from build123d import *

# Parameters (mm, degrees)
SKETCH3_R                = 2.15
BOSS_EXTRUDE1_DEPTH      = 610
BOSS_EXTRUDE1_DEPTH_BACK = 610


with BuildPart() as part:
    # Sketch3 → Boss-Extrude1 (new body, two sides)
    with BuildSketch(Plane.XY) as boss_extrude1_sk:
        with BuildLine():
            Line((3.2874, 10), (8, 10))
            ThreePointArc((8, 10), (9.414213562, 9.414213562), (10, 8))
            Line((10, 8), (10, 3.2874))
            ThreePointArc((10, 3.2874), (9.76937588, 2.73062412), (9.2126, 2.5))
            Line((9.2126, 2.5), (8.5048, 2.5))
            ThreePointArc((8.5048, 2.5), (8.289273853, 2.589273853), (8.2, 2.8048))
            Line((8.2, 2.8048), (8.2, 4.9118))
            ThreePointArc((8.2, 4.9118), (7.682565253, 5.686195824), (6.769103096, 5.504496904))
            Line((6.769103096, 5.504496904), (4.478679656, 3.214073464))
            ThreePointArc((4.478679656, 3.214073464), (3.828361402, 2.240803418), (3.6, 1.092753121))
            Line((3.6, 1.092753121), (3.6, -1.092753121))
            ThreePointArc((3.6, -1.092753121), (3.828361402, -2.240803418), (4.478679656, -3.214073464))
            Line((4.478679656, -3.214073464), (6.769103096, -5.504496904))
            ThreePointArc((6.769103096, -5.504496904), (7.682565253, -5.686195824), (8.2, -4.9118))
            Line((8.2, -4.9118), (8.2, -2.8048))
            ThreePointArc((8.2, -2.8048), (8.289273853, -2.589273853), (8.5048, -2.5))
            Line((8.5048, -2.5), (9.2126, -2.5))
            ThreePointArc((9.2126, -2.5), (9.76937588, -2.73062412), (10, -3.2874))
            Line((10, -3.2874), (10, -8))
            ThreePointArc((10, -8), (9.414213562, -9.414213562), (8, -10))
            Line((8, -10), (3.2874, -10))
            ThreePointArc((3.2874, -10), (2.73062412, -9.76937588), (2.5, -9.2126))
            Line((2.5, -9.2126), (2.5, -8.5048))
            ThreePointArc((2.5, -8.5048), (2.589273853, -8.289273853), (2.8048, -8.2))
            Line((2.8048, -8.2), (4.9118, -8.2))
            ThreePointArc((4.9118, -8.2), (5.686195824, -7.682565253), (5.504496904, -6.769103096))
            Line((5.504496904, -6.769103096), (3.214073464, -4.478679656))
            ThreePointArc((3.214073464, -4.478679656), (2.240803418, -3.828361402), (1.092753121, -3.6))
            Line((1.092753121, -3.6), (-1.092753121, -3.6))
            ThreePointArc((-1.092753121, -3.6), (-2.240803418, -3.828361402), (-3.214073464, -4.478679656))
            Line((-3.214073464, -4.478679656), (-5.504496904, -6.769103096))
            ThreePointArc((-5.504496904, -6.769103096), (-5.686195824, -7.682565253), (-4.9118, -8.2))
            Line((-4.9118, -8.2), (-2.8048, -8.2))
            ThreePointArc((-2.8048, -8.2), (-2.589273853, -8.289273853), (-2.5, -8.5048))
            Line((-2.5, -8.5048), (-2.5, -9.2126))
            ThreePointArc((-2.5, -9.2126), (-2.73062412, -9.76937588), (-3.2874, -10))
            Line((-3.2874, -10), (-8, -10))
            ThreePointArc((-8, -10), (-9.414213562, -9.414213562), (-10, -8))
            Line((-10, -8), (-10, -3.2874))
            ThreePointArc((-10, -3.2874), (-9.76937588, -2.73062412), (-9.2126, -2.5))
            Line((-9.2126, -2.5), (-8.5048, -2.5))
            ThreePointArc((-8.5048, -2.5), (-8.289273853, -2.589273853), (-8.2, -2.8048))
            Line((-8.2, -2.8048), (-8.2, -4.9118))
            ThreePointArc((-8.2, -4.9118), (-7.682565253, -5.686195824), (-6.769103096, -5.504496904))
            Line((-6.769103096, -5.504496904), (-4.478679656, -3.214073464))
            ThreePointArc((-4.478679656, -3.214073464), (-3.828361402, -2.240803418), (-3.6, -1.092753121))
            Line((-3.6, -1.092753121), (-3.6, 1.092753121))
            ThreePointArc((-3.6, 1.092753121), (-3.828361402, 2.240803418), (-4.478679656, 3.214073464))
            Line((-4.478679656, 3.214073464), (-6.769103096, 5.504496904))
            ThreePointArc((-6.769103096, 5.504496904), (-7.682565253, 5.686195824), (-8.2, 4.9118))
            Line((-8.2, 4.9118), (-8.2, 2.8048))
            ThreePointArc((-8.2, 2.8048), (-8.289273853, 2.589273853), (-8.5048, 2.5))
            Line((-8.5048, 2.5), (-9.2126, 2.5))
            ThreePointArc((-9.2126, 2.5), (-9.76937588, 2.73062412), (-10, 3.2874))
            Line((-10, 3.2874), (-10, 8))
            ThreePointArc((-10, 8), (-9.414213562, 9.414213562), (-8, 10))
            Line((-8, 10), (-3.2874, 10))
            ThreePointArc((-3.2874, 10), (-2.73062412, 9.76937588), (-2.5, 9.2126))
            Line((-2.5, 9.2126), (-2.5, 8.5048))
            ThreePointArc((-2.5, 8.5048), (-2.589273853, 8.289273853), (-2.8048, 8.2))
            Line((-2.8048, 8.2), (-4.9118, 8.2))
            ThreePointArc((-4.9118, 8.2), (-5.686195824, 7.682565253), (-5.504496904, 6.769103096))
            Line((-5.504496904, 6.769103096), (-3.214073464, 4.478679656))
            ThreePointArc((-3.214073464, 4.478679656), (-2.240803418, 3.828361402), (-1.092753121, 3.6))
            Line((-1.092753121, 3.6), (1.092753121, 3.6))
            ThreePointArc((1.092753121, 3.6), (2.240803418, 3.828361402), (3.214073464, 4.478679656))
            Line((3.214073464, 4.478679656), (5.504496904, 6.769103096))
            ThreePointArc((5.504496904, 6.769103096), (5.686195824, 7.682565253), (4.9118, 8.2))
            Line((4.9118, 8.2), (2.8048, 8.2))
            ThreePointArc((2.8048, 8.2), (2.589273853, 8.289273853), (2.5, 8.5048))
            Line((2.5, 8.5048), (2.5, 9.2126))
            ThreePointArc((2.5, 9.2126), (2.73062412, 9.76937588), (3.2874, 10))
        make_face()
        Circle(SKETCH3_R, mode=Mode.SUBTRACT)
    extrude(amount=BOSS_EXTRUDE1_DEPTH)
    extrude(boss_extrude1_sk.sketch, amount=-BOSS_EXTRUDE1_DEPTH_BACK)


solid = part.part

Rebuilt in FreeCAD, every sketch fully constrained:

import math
import FreeCAD as App
import Part
import Sketcher
Q = App.Units.Quantity

doc = App.newDocument("Part")
params = doc.addObject("Spreadsheet::Sheet", "Params")
for row, (alias, value) in enumerate([
    ("sketch1_radius", "3 mm"),
    ("sketch1_radius2", "2 mm"),
    ("sketch1_diameter", "4.3 mm"),
    ("pad1_length", "610 mm"),
    ("pad1_length2", "610 mm"),
], start=1):
    params.set(f"A{row}", alias)
    params.set(f"B{row}", "=" + value)
    params.setAlias(f"B{row}", alias)

body = doc.addObject("PartDesign::Body", "Body")

# Sketch on XY plane
sketch1 = body.newObject("Sketcher::SketchObject", "Sketch")
sketch1.AttachmentSupport = (doc.getObject("XY_Plane"), [""])
sketch1.MapMode = "FlatFace"
sketch1.addGeometry([
    Part.LineSegment(App.Vector(8, 10, 0), App.Vector(3.29, 10, 0)),  # 0
    Part.ArcOfCircle(Part.Circle(App.Vector(3.29, 9.21, 0), App.Vector(0, 0, 1), 0.79), math.radians(90), math.radians(180)),  # 1
    Part.LineSegment(App.Vector(2.5, 9.21, 0), App.Vector(2.5, 8.5, 0)),  # 2
    Part.ArcOfCircle(Part.Circle(App.Vector(2.8, 8.5, 0), App.Vector(0, 0, 1), 0.3), math.radians(180), math.radians(270)),  # 3
    Part.LineSegment(App.Vector(2.8, 8.2, 0), App.Vector(4.91, 8.2, 0)),  # 4
    Part.ArcOfCircle(Part.Circle(App.Vector(4.91, 7.36, 0), App.Vector(0, 0, 1), 0.84), math.radians(-45), math.radians(90)),  # 5
    Part.LineSegment(App.Vector(5.5, 6.77, 0), App.Vector(3.21, 4.48, 0)),  # 6
    Part.ArcOfCircle(Part.Circle(App.Vector(1.09, 6.6, 0), App.Vector(0, 0, 1), 3), math.radians(-90), math.radians(-45)),  # 7
    Part.LineSegment(App.Vector(1.09, 3.6, 0), App.Vector(-1.09, 3.6, 0)),  # 8
    Part.ArcOfCircle(Part.Circle(App.Vector(-1.09, 6.6, 0), App.Vector(0, 0, 1), 3), math.radians(-135), math.radians(-90)),  # 9
    Part.LineSegment(App.Vector(-3.21, 4.48, 0), App.Vector(-5.5, 6.77, 0)),  # 10
    Part.ArcOfCircle(Part.Circle(App.Vector(-4.91, 7.36, 0), App.Vector(0, 0, 1), 0.84), math.radians(90), math.radians(225)),  # 11
    Part.LineSegment(App.Vector(-4.91, 8.2, 0), App.Vector(-2.8, 8.2, 0)),  # 12
    Part.ArcOfCircle(Part.Circle(App.Vector(-2.8, 8.5, 0), App.Vector(0, 0, 1), 0.3), math.radians(-90), math.radians(0)),  # 13
    Part.LineSegment(App.Vector(-2.5, 8.5, 0), App.Vector(-2.5, 9.21, 0)),  # 14
    Part.ArcOfCircle(Part.Circle(App.Vector(-3.29, 9.21, 0), App.Vector(0, 0, 1), 0.79), math.radians(0), math.radians(90)),  # 15
    Part.LineSegment(App.Vector(-3.29, 10, 0), App.Vector(-8, 10, 0)),  # 16
    Part.ArcOfCircle(Part.Circle(App.Vector(-8, 8, 0), App.Vector(0, 0, 1), 2), math.radians(90), math.radians(180)),  # 17
    Part.LineSegment(App.Vector(-10, 8, 0), App.Vector(-10, 3.29, 0)),  # 18
    Part.ArcOfCircle(Part.Circle(App.Vector(-9.21, 3.29, 0), App.Vector(0, 0, 1), 0.79), math.radians(180), math.radians(270)),  # 19
    Part.LineSegment(App.Vector(-9.21, 2.5, 0), App.Vector(-8.5, 2.5, 0)),  # 20
    Part.ArcOfCircle(Part.Circle(App.Vector(-8.5, 2.8, 0), App.Vector(0, 0, 1), 0.3), math.radians(-90), math.radians(0)),  # 21
    Part.LineSegment(App.Vector(-8.2, 2.8, 0), App.Vector(-8.2, 4.91, 0)),  # 22
    Part.ArcOfCircle(Part.Circle(App.Vector(-7.36, 4.91, 0), App.Vector(0, 0, 1), 0.84), math.radians(45), math.radians(180)),  # 23
    Part.LineSegment(App.Vector(-6.77, 5.5, 0), App.Vector(-4.48, 3.21, 0)),  # 24
    Part.ArcOfCircle(Part.Circle(App.Vector(-6.6, 1.09, 0), App.Vector(0, 0, 1), 3), math.radians(0), math.radians(45)),  # 25
    Part.LineSegment(App.Vector(-3.6, 1.09, 0), App.Vector(-3.6, -1.09, 0)),  # 26
    Part.ArcOfCircle(Part.Circle(App.Vector(-6.6, -1.09, 0), App.Vector(0, 0, 1), 3), math.radians(-45), math.radians(0)),  # 27
    Part.LineSegment(App.Vector(-4.48, -3.21, 0), App.Vector(-6.77, -5.5, 0)),  # 28
    Part.ArcOfCircle(Part.Circle(App.Vector(-7.36, -4.91, 0), App.Vector(0, 0, 1), 0.84), math.radians(180), math.radians(315)),  # 29
    Part.LineSegment(App.Vector(-8.2, -4.91, 0), App.Vector(-8.2, -2.8, 0)),  # 30
    Part.ArcOfCircle(Part.Circle(App.Vector(-8.5, -2.8, 0), App.Vector(0, 0, 1), 0.3), math.radians(0), math.radians(90)),  # 31
    Part.LineSegment(App.Vector(-8.5, -2.5, 0), App.Vector(-9.21, -2.5, 0)),  # 32
    Part.ArcOfCircle(Part.Circle(App.Vector(-9.21, -3.29, 0), App.Vector(0, 0, 1), 0.79), math.radians(90), math.radians(180)),  # 33
    Part.LineSegment(App.Vector(-10, -3.29, 0), App.Vector(-10, -8, 0)),  # 34
    Part.ArcOfCircle(Part.Circle(App.Vector(-8, -8, 0), App.Vector(0, 0, 1), 2), math.radians(-180), math.radians(-90)),  # 35
    Part.LineSegment(App.Vector(-8, -10, 0), App.Vector(-3.29, -10, 0)),  # 36
    Part.ArcOfCircle(Part.Circle(App.Vector(-3.29, -9.21, 0), App.Vector(0, 0, 1), 0.79), math.radians(-90), math.radians(0)),  # 37
    Part.LineSegment(App.Vector(-2.5, -9.21, 0), App.Vector(-2.5, -8.5, 0)),  # 38
    Part.ArcOfCircle(Part.Circle(App.Vector(-2.8, -8.5, 0), App.Vector(0, 0, 1), 0.3), math.radians(0), math.radians(90)),  # 39
    Part.LineSegment(App.Vector(-2.8, -8.2, 0), App.Vector(-4.91, -8.2, 0)),  # 40
    Part.ArcOfCircle(Part.Circle(App.Vector(-4.91, -7.36, 0), App.Vector(0, 0, 1), 0.84), math.radians(135), math.radians(270)),  # 41
    Part.LineSegment(App.Vector(-5.5, -6.77, 0), App.Vector(-3.21, -4.48, 0)),  # 42
    Part.ArcOfCircle(Part.Circle(App.Vector(-1.09, -6.6, 0), App.Vector(0, 0, 1), 3), math.radians(90), math.radians(135)),  # 43
    Part.LineSegment(App.Vector(-1.09, -3.6, 0), App.Vector(1.09, -3.6, 0)),  # 44
    Part.ArcOfCircle(Part.Circle(App.Vector(1.09, -6.6, 0), App.Vector(0, 0, 1), 3), math.radians(45), math.radians(90)),  # 45
    Part.LineSegment(App.Vector(3.21, -4.48, 0), App.Vector(5.5, -6.77, 0)),  # 46
    Part.ArcOfCircle(Part.Circle(App.Vector(4.91, -7.36, 0), App.Vector(0, 0, 1), 0.84), math.radians(-90), math.radians(45)),  # 47
    Part.LineSegment(App.Vector(4.91, -8.2, 0), App.Vector(2.8, -8.2, 0)),  # 48
    Part.ArcOfCircle(Part.Circle(App.Vector(2.8, -8.5, 0), App.Vector(0, 0, 1), 0.3), math.radians(90), math.radians(180)),  # 49
    Part.LineSegment(App.Vector(2.5, -8.5, 0), App.Vector(2.5, -9.21, 0)),  # 50
    Part.ArcOfCircle(Part.Circle(App.Vector(3.29, -9.21, 0), App.Vector(0, 0, 1), 0.79), math.radians(180), math.radians(270)),  # 51
    Part.LineSegment(App.Vector(3.29, -10, 0), App.Vector(8, -10, 0)),  # 52
    Part.ArcOfCircle(Part.Circle(App.Vector(8, -8, 0), App.Vector(0, 0, 1), 2), math.radians(-90), math.radians(0)),  # 53
    Part.LineSegment(App.Vector(10, -8, 0), App.Vector(10, -3.29, 0)),  # 54
    Part.ArcOfCircle(Part.Circle(App.Vector(9.21, -3.29, 0), App.Vector(0, 0, 1), 0.79), math.radians(0), math.radians(90)),  # 55
    Part.LineSegment(App.Vector(9.21, -2.5, 0), App.Vector(8.5, -2.5, 0)),  # 56
    Part.ArcOfCircle(Part.Circle(App.Vector(8.5, -2.8, 0), App.Vector(0, 0, 1), 0.3), math.radians(90), math.radians(180)),  # 57
    Part.LineSegment(App.Vector(8.2, -2.8, 0), App.Vector(8.2, -4.91, 0)),  # 58
    Part.ArcOfCircle(Part.Circle(App.Vector(7.36, -4.91, 0), App.Vector(0, 0, 1), 0.84), math.radians(-135), math.radians(0)),  # 59
    Part.LineSegment(App.Vector(6.77, -5.5, 0), App.Vector(4.48, -3.21, 0)),  # 60
    Part.ArcOfCircle(Part.Circle(App.Vector(6.6, -1.09, 0), App.Vector(0, 0, 1), 3), math.radians(180), math.radians(225)),  # 61
    Part.LineSegment(App.Vector(3.6, -1.09, 0), App.Vector(3.6, 1.09, 0)),  # 62
    Part.ArcOfCircle(Part.Circle(App.Vector(6.6, 1.09, 0), App.Vector(0, 0, 1), 3), math.radians(135), math.radians(180)),  # 63
    Part.LineSegment(App.Vector(4.48, 3.21, 0), App.Vector(6.77, 5.5, 0)),  # 64
    Part.ArcOfCircle(Part.Circle(App.Vector(7.36, 4.91, 0), App.Vector(0, 0, 1), 0.84), math.radians(0), math.radians(135)),  # 65
    Part.LineSegment(App.Vector(8.2, 4.91, 0), App.Vector(8.2, 2.8, 0)),  # 66
    Part.ArcOfCircle(Part.Circle(App.Vector(8.5, 2.8, 0), App.Vector(0, 0, 1), 0.3), math.radians(180), math.radians(270)),  # 67
    Part.LineSegment(App.Vector(8.5, 2.5, 0), App.Vector(9.21, 2.5, 0)),  # 68
    Part.ArcOfCircle(Part.Circle(App.Vector(9.21, 3.29, 0), App.Vector(0, 0, 1), 0.79), math.radians(-90), math.radians(0)),  # 69
    Part.LineSegment(App.Vector(10, 3.29, 0), App.Vector(10, 8, 0)),  # 70
    Part.ArcOfCircle(Part.Circle(App.Vector(8, 8, 0), App.Vector(0, 0, 1), 2), math.radians(0), math.radians(90)),  # 71
    Part.Circle(App.Vector(0, 0, 0), App.Vector(0, 0, 1), 2.15),  # 72
], False)
sketch1.addConstraint([
    Sketcher.Constraint("Tangent", 0, 2, 1, 1),
    Sketcher.Constraint("Tangent", 1, 2, 2, 1),
    Sketcher.Constraint("Tangent", 2, 2, 3, 1),
    Sketcher.Constraint("Tangent", 3, 2, 4, 1),
    Sketcher.Constraint("Tangent", 4, 2, 5, 2),
    Sketcher.Constraint("Tangent", 5, 1, 6, 1),
    Sketcher.Constraint("Tangent", 6, 2, 7, 2),
    Sketcher.Constraint("Tangent", 7, 1, 8, 1),
    Sketcher.Constraint("Tangent", 8, 2, 9, 2),
    Sketcher.Constraint("Tangent", 9, 1, 10, 1),
    Sketcher.Constraint("Tangent", 10, 2, 11, 2),
    Sketcher.Constraint("Tangent", 11, 1, 12, 1),
    Sketcher.Constraint("Tangent", 12, 2, 13, 1),
    Sketcher.Constraint("Tangent", 13, 2, 14, 1),
    Sketcher.Constraint("Tangent", 14, 2, 15, 1),
    Sketcher.Constraint("Tangent", 15, 2, 16, 1),
    Sketcher.Constraint("Tangent", 16, 2, 17, 1),
    Sketcher.Constraint("Tangent", 17, 2, 18, 1),
    Sketcher.Constraint("Tangent", 18, 2, 19, 1),
    Sketcher.Constraint("Tangent", 19, 2, 20, 1),
    Sketcher.Constraint("Tangent", 20, 2, 21, 1),
    Sketcher.Constraint("Tangent", 21, 2, 22, 1),
    Sketcher.Constraint("Tangent", 22, 2, 23, 2),
    Sketcher.Constraint("Tangent", 23, 1, 24, 1),
    Sketcher.Constraint("Tangent", 24, 2, 25, 2),
    Sketcher.Constraint("Tangent", 25, 1, 26, 1),
    Sketcher.Constraint("Tangent", 26, 2, 27, 2),
    Sketcher.Constraint("Tangent", 27, 1, 28, 1),
    Sketcher.Constraint("Tangent", 28, 2, 29, 2),
    Sketcher.Constraint("Tangent", 29, 1, 30, 1),
    Sketcher.Constraint("Tangent", 30, 2, 31, 1),
    Sketcher.Constraint("Tangent", 31, 2, 32, 1),
    Sketcher.Constraint("Tangent", 32, 2, 33, 1),
    Sketcher.Constraint("Tangent", 33, 2, 34, 1),
    Sketcher.Constraint("Tangent", 34, 2, 35, 1),
    Sketcher.Constraint("Tangent", 35, 2, 36, 1),
    Sketcher.Constraint("Tangent", 36, 2, 37, 1),
    Sketcher.Constraint("Tangent", 37, 2, 38, 1),
    Sketcher.Constraint("Tangent", 38, 2, 39, 1),
    Sketcher.Constraint("Tangent", 39, 2, 40, 1),
    Sketcher.Constraint("Tangent", 40, 2, 41, 2),
    Sketcher.Constraint("Tangent", 41, 1, 42, 1),
    Sketcher.Constraint("Tangent", 42, 2, 43, 2),
    Sketcher.Constraint("Tangent", 43, 1, 44, 1),
    Sketcher.Constraint("Tangent", 44, 2, 45, 2),
    Sketcher.Constraint("Tangent", 45, 1, 46, 1),
    Sketcher.Constraint("Tangent", 46, 2, 47, 2),
    Sketcher.Constraint("Tangent", 47, 1, 48, 1),
    Sketcher.Constraint("Tangent", 48, 2, 49, 1),
    Sketcher.Constraint("Tangent", 49, 2, 50, 1),
    Sketcher.Constraint("Tangent", 50, 2, 51, 1),
    Sketcher.Constraint("Tangent", 51, 2, 52, 1),
    Sketcher.Constraint("Tangent", 52, 2, 53, 1),
    Sketcher.Constraint("Tangent", 53, 2, 54, 1),
    Sketcher.Constraint("Tangent", 54, 2, 55, 1),
    Sketcher.Constraint("Tangent", 55, 2, 56, 1),
    Sketcher.Constraint("Tangent", 56, 2, 57, 1),
    Sketcher.Constraint("Tangent", 57, 2, 58, 1),
    Sketcher.Constraint("Tangent", 58, 2, 59, 2),
    Sketcher.Constraint("Tangent", 59, 1, 60, 1),
    Sketcher.Constraint("Tangent", 60, 2, 61, 2),
    Sketcher.Constraint("Tangent", 61, 1, 62, 1),
    Sketcher.Constraint("Tangent", 62, 2, 63, 2),
    Sketcher.Constraint("Tangent", 63, 1, 64, 1),
    Sketcher.Constraint("Tangent", 64, 2, 65, 2),
    Sketcher.Constraint("Tangent", 65, 1, 66, 1),
    Sketcher.Constraint("Tangent", 66, 2, 67, 1),
    Sketcher.Constraint("Tangent", 67, 2, 68, 1),
    Sketcher.Constraint("Tangent", 68, 2, 69, 1),
    Sketcher.Constraint("Tangent", 69, 2, 70, 1),
    Sketcher.Constraint("Tangent", 70, 2, 71, 1),
    Sketcher.Constraint("Tangent", 71, 2, 0, 1),
    Sketcher.Constraint("Horizontal", 0),
    Sketcher.Constraint("Vertical", 2),
    Sketcher.Constraint("Horizontal", 4),
    Sketcher.Constraint("Horizontal", 8),
    Sketcher.Constraint("Horizontal", 12),
    Sketcher.Constraint("Vertical", 14),
    Sketcher.Constraint("Horizontal", 16),
    Sketcher.Constraint("Vertical", 18),
    Sketcher.Constraint("Horizontal", 20),
    Sketcher.Constraint("Vertical", 22),
    Sketcher.Constraint("Vertical", 26),
    Sketcher.Constraint("Vertical", 30),
    Sketcher.Constraint("Horizontal", 32),
    Sketcher.Constraint("Vertical", 34),
    Sketcher.Constraint("Horizontal", 36),
    Sketcher.Constraint("Vertical", 38),
    Sketcher.Constraint("Horizontal", 40),
    Sketcher.Constraint("Horizontal", 44),
    Sketcher.Constraint("Horizontal", 48),
    Sketcher.Constraint("Vertical", 50),
    Sketcher.Constraint("Horizontal", 52),
    Sketcher.Constraint("Vertical", 54),
    Sketcher.Constraint("Horizontal", 56),
    Sketcher.Constraint("Vertical", 58),
    Sketcher.Constraint("Vertical", 62),
    Sketcher.Constraint("Vertical", 66),
    Sketcher.Constraint("Horizontal", 68),
    Sketcher.Constraint("Vertical", 70),
    Sketcher.Constraint("Coincident", 72, 3, -1, 1),
    Sketcher.Constraint("Equal", 7, 9),
    Sketcher.Constraint("Equal", 5, 11),
    Sketcher.Constraint("Equal", 3, 13),
    Sketcher.Constraint("Equal", 1, 15),
    Sketcher.Constraint("Equal", 15, 19),
    Sketcher.Constraint("Equal", 13, 21),
    Sketcher.Constraint("Equal", 11, 23),
    Sketcher.Constraint("Equal", 9, 25),
    Sketcher.Constraint("Equal", 25, 27),
    Sketcher.Constraint("Equal", 23, 29),
    Sketcher.Constraint("Equal", 21, 31),
    Sketcher.Constraint("Equal", 19, 33),
    Sketcher.Constraint("Equal", 17, 35),
    Sketcher.Constraint("Equal", 33, 37),
    Sketcher.Constraint("Equal", 31, 39),
    Sketcher.Constraint("Equal", 29, 41),
    Sketcher.Constraint("Equal", 27, 43),
    Sketcher.Constraint("Equal", 43, 45),
    Sketcher.Constraint("Equal", 41, 47),
    Sketcher.Constraint("Equal", 39, 49),
    Sketcher.Constraint("Equal", 37, 51),
    Sketcher.Constraint("Equal", 35, 53),
    Sketcher.Constraint("Equal", 51, 55),
    Sketcher.Constraint("Equal", 49, 57),
    Sketcher.Constraint("Equal", 47, 59),
    Sketcher.Constraint("Equal", 45, 61),
    Sketcher.Constraint("Equal", 61, 63),
    Sketcher.Constraint("Equal", 59, 65),
    Sketcher.Constraint("Equal", 57, 67),
    Sketcher.Constraint("Equal", 55, 69),
    Sketcher.Constraint("Equal", 53, 71),
    Sketcher.Constraint("Symmetric", 1, 3, 37, 3, -1, 1),
    Sketcher.Constraint("Symmetric", 5, 3, 41, 3, -1, 1),
    Sketcher.Constraint("Symmetric", 7, 3, 43, 3, -1, 1),
    Sketcher.Constraint("Symmetric", 11, 3, 47, 3, -1, 1),
    Sketcher.Constraint("Symmetric", 15, 3, 51, 3, -1, 1),
    Sketcher.Constraint("Symmetric", 19, 3, 55, 3, -1, 1),
    Sketcher.Constraint("Symmetric", 23, 3, 59, 3, -1, 1),
    Sketcher.Constraint("Symmetric", 25, 3, 61, 3, -1, 1),
    Sketcher.Constraint("Symmetric", 29, 3, 65, 3, -1, 1),
    Sketcher.Constraint("Symmetric", 33, 3, 69, 3, -1, 1),
    Sketcher.Constraint("Symmetric", 5, 3, 11, 3, -2),
    Sketcher.Constraint("Symmetric", 1, 3, 15, 3, -2),
    Sketcher.Constraint("Symmetric", 33, 3, 55, 3, -2),
    Sketcher.Constraint("Symmetric", 29, 3, 59, 3, -2),
    Sketcher.Constraint("Perpendicular", 6, 10),
    Sketcher.Constraint("Parallel", 10, 24),
    Sketcher.Constraint("Perpendicular", 24, 28),
    Sketcher.Constraint("Perpendicular", 42, 46),
    Sketcher.Constraint("Perpendicular", 60, 64),
    Sketcher.Constraint("Horizontal", 27, 3, 61, 3),
    Sketcher.Constraint("Equal", 68, 2),
    Sketcher.Constraint("Equal", 52, 18),
    Sketcher.Constraint("Equal", 48, 22),
    Sketcher.Constraint("Equal", 44, 26),
    Sketcher.Constraint("Equal", 10, 24),
    Sketcher.Constraint("Radius", 7, Q("3 mm")),
    Sketcher.Constraint("Radius", 17, Q("2 mm")),
    Sketcher.Constraint("Diameter", 72, Q("4.3 mm")),
    Sketcher.Constraint("DistanceX", 17, 3, -1, 1, Q("8 mm")),
    Sketcher.Constraint("DistanceY", -1, 1, 7, 3, Q("6.6 mm")),
    Sketcher.Constraint("DistanceX", -1, 1, 1, 2, Q("2.5 mm")),
    Sketcher.Constraint("DistanceY", -1, 1, 3, 2, Q("8.2 mm")),
    Sketcher.Constraint("Radius", 1, Q("0.7874 mm")),
    Sketcher.Constraint("Radius", 3, Q("0.3048 mm")),
    Sketcher.Constraint("Radius", 5, Q("0.8382 mm")),
    Sketcher.Constraint("DistanceX", 4, 1, 4, 2, Q("2.107 mm")),
])
sketch1.setExpression("Constraints[157]", "Params.sketch1_radius")
sketch1.setExpression("Constraints[158]", "Params.sketch1_radius2")
sketch1.setExpression("Constraints[159]", "Params.sketch1_diameter")
pad1 = body.newObject("PartDesign::Pad", "Pad")
pad1.Profile = sketch1
pad1.Type = "TwoLengths"
pad1.setExpression("Length", "Params.pad1_length")
pad1.setExpression("Length2", "Params.pad1_length2")

doc.recompute()
